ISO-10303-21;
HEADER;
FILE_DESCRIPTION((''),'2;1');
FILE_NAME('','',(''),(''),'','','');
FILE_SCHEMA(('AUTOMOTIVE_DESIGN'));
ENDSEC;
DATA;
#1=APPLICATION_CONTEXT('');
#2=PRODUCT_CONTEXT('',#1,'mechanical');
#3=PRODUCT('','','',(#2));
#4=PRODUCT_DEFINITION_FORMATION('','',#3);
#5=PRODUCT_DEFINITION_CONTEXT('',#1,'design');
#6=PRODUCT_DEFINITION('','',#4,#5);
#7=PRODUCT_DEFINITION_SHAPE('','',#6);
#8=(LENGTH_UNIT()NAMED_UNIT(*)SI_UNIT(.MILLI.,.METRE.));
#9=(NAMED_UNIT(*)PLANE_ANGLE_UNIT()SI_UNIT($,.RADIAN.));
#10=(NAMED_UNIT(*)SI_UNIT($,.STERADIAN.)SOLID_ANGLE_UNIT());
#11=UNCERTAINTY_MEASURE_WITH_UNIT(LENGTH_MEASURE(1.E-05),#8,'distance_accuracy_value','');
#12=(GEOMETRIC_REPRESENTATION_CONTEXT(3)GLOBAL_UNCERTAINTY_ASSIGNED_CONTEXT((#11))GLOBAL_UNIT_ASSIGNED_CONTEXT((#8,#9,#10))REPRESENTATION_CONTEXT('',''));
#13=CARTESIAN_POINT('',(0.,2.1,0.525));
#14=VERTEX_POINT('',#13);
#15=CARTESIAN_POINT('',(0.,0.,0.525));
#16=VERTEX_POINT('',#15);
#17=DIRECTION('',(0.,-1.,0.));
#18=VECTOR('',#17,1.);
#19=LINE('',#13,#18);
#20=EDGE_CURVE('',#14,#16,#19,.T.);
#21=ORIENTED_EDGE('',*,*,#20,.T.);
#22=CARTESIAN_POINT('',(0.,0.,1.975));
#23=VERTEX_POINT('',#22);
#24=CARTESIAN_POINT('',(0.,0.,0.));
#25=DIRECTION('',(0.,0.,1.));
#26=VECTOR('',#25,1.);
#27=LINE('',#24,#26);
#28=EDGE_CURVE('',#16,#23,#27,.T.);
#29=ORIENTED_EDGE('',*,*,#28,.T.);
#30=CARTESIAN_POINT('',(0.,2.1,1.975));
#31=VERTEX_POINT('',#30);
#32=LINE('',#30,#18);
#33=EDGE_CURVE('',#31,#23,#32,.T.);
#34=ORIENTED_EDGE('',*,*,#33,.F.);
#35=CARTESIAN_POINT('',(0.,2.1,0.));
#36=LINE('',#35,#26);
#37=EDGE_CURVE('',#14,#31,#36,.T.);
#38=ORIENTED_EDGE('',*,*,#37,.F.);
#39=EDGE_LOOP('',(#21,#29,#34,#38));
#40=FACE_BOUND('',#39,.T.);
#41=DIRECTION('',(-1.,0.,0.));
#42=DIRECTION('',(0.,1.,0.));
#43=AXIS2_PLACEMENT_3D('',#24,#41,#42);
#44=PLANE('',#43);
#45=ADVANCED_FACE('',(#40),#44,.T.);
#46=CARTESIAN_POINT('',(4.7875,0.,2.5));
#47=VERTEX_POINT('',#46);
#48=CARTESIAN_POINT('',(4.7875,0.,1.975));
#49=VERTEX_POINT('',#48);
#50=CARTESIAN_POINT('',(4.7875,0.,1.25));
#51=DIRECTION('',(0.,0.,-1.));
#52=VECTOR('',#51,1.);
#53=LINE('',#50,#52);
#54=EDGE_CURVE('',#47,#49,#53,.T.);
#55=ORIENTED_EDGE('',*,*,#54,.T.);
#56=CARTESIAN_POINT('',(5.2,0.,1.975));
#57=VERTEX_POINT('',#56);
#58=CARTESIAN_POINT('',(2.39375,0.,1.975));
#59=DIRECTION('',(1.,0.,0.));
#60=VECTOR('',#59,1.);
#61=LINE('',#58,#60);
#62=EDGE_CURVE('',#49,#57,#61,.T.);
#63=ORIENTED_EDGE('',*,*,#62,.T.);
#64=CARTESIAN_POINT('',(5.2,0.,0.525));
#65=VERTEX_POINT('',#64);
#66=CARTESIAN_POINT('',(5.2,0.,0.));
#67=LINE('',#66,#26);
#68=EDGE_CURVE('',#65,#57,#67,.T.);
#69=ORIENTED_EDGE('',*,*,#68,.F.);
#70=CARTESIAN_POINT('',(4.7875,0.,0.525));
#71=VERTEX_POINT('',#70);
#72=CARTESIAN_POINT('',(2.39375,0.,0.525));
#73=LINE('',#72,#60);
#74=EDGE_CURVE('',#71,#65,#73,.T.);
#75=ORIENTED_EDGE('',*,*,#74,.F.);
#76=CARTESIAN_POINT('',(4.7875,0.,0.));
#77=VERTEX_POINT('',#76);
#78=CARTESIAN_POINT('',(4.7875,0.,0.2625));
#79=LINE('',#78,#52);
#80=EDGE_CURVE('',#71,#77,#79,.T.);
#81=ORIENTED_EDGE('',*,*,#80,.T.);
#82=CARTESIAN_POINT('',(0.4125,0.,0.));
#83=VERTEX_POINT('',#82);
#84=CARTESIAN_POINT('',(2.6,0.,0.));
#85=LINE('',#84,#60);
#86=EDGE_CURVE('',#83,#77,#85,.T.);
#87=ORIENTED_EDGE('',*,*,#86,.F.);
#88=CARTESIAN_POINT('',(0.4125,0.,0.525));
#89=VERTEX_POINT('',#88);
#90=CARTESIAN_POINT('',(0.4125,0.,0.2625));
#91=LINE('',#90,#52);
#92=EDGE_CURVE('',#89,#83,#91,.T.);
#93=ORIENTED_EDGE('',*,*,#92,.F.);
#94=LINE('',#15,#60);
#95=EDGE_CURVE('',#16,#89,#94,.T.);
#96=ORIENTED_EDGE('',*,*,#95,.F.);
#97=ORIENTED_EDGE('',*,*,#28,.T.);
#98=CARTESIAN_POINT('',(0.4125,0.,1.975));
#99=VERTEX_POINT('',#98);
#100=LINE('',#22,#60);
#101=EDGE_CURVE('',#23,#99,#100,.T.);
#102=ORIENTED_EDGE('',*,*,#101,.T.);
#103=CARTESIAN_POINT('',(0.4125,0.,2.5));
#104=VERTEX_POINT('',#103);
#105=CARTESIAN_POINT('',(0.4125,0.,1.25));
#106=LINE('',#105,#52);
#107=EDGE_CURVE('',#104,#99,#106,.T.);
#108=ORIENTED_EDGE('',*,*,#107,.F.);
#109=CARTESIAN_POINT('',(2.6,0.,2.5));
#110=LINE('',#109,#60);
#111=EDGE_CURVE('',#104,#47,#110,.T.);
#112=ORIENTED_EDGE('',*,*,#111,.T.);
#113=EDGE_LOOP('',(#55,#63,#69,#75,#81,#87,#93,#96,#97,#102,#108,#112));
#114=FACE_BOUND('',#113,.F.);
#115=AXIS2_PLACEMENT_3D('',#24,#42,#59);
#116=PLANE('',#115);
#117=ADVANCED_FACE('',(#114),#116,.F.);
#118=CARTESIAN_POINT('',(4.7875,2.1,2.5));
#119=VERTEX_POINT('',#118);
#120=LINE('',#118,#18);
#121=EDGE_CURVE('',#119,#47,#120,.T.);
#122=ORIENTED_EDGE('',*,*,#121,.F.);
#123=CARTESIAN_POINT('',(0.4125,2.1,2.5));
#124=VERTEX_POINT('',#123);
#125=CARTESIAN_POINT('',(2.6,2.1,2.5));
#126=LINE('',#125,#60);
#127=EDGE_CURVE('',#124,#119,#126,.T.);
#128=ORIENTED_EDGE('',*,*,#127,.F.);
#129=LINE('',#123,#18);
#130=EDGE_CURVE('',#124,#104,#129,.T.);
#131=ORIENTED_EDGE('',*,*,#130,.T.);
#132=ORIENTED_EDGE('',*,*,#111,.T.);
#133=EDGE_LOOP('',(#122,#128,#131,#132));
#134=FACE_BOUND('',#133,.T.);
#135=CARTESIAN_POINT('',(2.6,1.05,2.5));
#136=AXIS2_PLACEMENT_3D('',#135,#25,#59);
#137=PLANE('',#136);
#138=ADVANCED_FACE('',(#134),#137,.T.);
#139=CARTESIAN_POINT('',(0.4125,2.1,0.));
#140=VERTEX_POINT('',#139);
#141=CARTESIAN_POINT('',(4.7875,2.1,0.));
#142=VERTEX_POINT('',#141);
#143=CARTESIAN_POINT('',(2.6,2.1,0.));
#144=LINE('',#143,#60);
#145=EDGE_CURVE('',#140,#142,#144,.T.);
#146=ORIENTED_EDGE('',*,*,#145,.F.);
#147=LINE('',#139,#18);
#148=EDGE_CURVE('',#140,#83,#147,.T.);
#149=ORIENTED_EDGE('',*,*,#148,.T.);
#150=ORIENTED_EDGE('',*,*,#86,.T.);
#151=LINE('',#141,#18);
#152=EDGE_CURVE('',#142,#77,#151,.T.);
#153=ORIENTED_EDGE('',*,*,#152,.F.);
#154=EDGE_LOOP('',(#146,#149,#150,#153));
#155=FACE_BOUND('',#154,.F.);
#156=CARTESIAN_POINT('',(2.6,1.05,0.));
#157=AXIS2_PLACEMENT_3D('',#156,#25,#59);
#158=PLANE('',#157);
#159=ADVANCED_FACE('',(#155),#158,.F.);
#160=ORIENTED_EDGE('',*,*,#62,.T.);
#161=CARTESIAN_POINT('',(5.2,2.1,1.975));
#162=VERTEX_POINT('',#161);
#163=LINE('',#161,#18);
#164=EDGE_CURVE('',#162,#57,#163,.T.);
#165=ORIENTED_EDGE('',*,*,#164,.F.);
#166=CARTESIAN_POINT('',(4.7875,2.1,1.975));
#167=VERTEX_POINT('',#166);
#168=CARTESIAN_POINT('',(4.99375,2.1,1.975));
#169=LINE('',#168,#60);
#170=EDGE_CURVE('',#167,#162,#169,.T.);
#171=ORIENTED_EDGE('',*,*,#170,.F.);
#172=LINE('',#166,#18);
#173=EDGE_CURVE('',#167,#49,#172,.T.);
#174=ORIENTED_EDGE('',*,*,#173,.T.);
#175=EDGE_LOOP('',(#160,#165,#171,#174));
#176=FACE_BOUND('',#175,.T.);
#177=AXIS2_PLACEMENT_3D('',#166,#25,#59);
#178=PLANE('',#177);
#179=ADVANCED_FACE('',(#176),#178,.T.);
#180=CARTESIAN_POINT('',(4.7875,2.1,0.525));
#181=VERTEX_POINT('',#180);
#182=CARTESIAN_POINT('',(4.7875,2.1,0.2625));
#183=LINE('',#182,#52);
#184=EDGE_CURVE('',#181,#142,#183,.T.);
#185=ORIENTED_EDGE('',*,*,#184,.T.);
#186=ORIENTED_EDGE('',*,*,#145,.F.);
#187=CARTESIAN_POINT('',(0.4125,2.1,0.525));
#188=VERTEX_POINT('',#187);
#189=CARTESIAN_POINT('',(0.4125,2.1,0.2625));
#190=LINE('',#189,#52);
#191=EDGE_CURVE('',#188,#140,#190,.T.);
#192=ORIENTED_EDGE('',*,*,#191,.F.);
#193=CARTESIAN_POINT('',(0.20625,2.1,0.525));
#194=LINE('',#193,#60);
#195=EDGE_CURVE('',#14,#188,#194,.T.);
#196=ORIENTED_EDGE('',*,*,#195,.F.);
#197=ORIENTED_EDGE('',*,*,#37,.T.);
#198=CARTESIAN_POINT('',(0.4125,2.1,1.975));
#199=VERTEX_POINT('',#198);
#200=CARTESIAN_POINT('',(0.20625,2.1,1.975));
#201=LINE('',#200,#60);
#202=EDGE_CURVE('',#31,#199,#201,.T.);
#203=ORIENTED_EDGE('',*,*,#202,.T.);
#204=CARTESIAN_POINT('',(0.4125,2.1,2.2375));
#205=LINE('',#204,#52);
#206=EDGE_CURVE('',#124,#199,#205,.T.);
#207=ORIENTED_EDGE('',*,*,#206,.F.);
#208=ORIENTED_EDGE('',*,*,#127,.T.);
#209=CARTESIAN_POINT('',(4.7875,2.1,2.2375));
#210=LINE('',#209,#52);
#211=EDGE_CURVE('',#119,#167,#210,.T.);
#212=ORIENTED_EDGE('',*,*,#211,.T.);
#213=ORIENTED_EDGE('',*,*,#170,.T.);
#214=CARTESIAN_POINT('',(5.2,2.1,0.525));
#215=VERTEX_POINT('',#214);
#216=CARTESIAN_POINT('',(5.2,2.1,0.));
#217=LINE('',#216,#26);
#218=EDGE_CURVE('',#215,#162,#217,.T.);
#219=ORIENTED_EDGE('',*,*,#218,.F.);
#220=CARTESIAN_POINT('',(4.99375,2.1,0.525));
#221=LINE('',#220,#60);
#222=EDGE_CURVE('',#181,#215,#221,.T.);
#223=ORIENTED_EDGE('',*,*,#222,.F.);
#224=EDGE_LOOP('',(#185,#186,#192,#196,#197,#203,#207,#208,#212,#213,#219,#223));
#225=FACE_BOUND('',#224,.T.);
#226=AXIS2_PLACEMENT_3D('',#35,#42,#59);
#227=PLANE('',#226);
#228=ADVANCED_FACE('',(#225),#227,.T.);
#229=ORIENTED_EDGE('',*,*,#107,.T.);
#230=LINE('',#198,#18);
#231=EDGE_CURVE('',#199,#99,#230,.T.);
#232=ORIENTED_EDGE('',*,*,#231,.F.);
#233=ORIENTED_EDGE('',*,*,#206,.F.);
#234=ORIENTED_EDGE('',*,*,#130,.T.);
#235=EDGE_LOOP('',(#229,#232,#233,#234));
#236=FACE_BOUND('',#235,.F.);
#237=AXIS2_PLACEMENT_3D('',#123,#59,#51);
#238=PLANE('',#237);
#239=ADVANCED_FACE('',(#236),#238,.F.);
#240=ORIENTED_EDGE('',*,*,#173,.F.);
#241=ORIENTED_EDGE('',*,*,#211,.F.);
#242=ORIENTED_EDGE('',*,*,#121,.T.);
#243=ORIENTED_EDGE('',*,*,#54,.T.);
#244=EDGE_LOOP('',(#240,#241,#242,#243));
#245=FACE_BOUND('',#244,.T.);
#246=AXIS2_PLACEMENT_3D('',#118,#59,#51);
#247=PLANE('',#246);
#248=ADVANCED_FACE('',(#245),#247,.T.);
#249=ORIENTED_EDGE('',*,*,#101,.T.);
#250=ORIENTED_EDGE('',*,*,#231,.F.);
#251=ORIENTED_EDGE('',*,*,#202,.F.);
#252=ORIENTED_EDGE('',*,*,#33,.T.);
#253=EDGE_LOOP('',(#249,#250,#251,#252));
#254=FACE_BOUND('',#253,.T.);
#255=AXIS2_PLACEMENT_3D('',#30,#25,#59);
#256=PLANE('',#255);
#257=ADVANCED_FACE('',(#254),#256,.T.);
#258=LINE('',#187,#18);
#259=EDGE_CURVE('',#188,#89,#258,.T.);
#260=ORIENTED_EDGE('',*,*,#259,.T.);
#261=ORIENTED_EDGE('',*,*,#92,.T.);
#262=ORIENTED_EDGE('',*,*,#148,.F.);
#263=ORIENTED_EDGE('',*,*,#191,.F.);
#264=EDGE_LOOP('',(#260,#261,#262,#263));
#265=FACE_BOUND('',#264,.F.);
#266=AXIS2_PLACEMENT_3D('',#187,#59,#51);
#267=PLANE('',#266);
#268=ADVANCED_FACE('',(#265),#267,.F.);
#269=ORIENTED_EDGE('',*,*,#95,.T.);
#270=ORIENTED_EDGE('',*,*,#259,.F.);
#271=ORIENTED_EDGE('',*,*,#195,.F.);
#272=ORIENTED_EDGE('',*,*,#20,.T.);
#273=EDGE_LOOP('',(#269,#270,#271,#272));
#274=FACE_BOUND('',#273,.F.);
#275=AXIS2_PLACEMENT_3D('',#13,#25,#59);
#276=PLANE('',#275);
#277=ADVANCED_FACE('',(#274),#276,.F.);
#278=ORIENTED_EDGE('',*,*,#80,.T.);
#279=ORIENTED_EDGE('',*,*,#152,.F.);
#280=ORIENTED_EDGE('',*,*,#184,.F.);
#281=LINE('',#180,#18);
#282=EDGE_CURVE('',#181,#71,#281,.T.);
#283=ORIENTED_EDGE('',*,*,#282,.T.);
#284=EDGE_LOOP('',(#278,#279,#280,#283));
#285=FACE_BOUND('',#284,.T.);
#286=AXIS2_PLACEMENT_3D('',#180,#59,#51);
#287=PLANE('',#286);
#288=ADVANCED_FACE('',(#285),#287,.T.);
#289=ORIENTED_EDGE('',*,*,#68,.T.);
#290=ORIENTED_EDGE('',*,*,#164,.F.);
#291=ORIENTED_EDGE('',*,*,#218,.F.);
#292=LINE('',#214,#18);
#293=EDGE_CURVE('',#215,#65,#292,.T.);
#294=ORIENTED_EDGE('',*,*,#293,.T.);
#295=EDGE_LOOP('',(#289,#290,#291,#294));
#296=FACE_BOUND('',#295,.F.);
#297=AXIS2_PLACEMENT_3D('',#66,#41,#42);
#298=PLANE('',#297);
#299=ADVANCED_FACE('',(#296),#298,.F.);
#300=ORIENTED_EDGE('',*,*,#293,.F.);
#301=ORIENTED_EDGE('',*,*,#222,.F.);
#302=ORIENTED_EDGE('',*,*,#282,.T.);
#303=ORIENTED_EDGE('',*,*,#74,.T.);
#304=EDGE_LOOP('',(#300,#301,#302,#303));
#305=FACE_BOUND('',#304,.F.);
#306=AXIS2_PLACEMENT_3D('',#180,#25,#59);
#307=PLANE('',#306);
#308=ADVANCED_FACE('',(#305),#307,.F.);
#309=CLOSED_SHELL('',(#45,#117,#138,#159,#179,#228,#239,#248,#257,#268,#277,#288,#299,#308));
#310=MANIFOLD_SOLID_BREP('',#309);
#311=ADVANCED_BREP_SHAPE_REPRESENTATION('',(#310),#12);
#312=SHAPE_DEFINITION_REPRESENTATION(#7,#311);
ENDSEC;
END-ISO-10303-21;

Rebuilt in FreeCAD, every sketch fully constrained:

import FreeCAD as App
import Part
import Sketcher
Q = App.Units.Quantity


def add_polygon(sketch, points):
    """Adds a closed chain of lines whose ends are joined by coincident constraints."""
    first, n = sketch.GeometryCount, len(points)
    for a, b in zip(points, points[1:] + points[:1]):
        sketch.addGeometry(Part.LineSegment(App.Vector(*a, 0), App.Vector(*b, 0)), False)
    for i in range(n):
        sketch.addConstraint(Sketcher.Constraint("Coincident", first + i, 2, first + (i + 1) % n, 1))

doc = App.newDocument("Part")
body = doc.addObject("PartDesign::Body", "Body")

# Sketch on XY plane
sketch1 = body.newObject("Sketcher::SketchObject", "Sketch")
sketch1.AttachmentSupport = (doc.getObject("XY_Plane"), [""])
sketch1.MapMode = "FlatFace"
add_polygon(sketch1, [(0, 2.1), (0, 0), (5.2, 0), (5.2, 2.1)])  # lines 0-3
sketch1.addConstraint(Sketcher.Constraint("Vertical", 0))
sketch1.addConstraint(Sketcher.Constraint("Horizontal", 1))
sketch1.addConstraint(Sketcher.Constraint("Vertical", 2))
sketch1.addConstraint(Sketcher.Constraint("Horizontal", 3))
sketch1.addConstraint(Sketcher.Constraint("Coincident", 0, 2, -1, 1))
sketch1.addConstraint(Sketcher.Constraint("DistanceX", 1, 1, 1, 2, Q("5.2 mm")))
sketch1.addConstraint(Sketcher.Constraint("DistanceY", 0, 2, 0, 1, Q("2.1 mm")))
pad1 = body.newObject("PartDesign::Pad", "Pad")
pad1.Profile = sketch1
pad1.Length = 2.5

# Sketch on XZ plane
sketch2 = body.newObject("Sketcher::SketchObject", "Sketch001")
sketch2.AttachmentSupport = (doc.getObject("XZ_Plane"), [""])
sketch2.MapMode = "FlatFace"
sketch2.AttachmentOffset = App.Placement(App.Vector(0, 0, -2.1), App.Rotation())
add_polygon(sketch2, [(4.7875, 0), (4.7875, 0.525), (5.2, 0.525), (5.2, 0)])  # lines 0-3
add_polygon(sketch2, [(0, 0), (0, 0.525), (0.4125, 0.525), (0.4125, 0)])  # lines 4-7
add_polygon(sketch2, [(4.7875, 1.975), (4.7875, 2.5), (5.2, 2.5), (5.2, 1.975)])  # lines 8-11
add_polygon(sketch2, [(0, 1.975), (0, 2.5), (0.4125, 2.5), (0.4125, 1.975)])  # lines 12-15
sketch2.addConstraint(Sketcher.Constraint("Vertical", 0))
sketch2.addConstraint(Sketcher.Constraint("Horizontal", 1))
sketch2.addConstraint(Sketcher.Constraint("Vertical", 2))
sketch2.addConstraint(Sketcher.Constraint("Horizontal", 3))
sketch2.addConstraint(Sketcher.Constraint("Vertical", 4))
sketch2.addConstraint(Sketcher.Constraint("Horizontal", 5))
sketch2.addConstraint(Sketcher.Constraint("Vertical", 6))
sketch2.addConstraint(Sketcher.Constraint("Horizontal", 7))
sketch2.addConstraint(Sketcher.Constraint("Vertical", 8))
sketch2.addConstraint(Sketcher.Constraint("Horizontal", 9))
sketch2.addConstraint(Sketcher.Constraint("Vertical", 10))
sketch2.addConstraint(Sketcher.Constraint("Horizontal", 11))
sketch2.addConstraint(Sketcher.Constraint("Vertical", 12))
sketch2.addConstraint(Sketcher.Constraint("Horizontal", 13))
sketch2.addConstraint(Sketcher.Constraint("Vertical", 14))
sketch2.addConstraint(Sketcher.Constraint("Horizontal", 15))
sketch2.addConstraint(Sketcher.Constraint("Coincident", 7, 2, -1, 1))
sketch2.addConstraint(Sketcher.Constraint("PointOnObject", 2, 2, -1))
sketch2.addConstraint(Sketcher.Constraint("PointOnObject", 12, 2, -2))
sketch2.addConstraint(Sketcher.Constraint("Horizontal", 1, 2, 4, 2))
sketch2.addConstraint(Sketcher.Constraint("Horizontal", 9, 2, 12, 2))
sketch2.addConstraint(Sketcher.Constraint("Horizontal", 11, 2, 14, 2))
sketch2.addConstraint(Sketcher.Constraint("Vertical", 3, 2, 8, 2))
sketch2.addConstraint(Sketcher.Constraint("Vertical", 2, 2, 9, 2))
sketch2.addConstraint(Sketcher.Constraint("Vertical", 6, 2, 13, 2))
sketch2.addConstraint(Sketcher.Constraint("Equal", 3, 5))
sketch2.addConstraint(Sketcher.Constraint("Equal", 6, 8))
sketch2.addConstraint(Sketcher.Constraint("DistanceX", -1, 1, 1, 2, Q("5.2 mm")))
sketch2.addConstraint(Sketcher.Constraint("DistanceY", -1, 1, 8, 2, Q("2.5 mm")))
sketch2.addConstraint(Sketcher.Constraint("DistanceY", 0, 1, 0, 2, Q("0.525 mm")))
sketch2.addConstraint(Sketcher.Constraint("DistanceX", 1, 1, 1, 2, Q("0.4125 mm")))
pocket1 = body.newObject("PartDesign::Pocket", "Pocket")
pocket1.Profile = sketch2
pocket1.Type = "ThroughAll"
pocket1.Reversed = True

doc.recompute()
